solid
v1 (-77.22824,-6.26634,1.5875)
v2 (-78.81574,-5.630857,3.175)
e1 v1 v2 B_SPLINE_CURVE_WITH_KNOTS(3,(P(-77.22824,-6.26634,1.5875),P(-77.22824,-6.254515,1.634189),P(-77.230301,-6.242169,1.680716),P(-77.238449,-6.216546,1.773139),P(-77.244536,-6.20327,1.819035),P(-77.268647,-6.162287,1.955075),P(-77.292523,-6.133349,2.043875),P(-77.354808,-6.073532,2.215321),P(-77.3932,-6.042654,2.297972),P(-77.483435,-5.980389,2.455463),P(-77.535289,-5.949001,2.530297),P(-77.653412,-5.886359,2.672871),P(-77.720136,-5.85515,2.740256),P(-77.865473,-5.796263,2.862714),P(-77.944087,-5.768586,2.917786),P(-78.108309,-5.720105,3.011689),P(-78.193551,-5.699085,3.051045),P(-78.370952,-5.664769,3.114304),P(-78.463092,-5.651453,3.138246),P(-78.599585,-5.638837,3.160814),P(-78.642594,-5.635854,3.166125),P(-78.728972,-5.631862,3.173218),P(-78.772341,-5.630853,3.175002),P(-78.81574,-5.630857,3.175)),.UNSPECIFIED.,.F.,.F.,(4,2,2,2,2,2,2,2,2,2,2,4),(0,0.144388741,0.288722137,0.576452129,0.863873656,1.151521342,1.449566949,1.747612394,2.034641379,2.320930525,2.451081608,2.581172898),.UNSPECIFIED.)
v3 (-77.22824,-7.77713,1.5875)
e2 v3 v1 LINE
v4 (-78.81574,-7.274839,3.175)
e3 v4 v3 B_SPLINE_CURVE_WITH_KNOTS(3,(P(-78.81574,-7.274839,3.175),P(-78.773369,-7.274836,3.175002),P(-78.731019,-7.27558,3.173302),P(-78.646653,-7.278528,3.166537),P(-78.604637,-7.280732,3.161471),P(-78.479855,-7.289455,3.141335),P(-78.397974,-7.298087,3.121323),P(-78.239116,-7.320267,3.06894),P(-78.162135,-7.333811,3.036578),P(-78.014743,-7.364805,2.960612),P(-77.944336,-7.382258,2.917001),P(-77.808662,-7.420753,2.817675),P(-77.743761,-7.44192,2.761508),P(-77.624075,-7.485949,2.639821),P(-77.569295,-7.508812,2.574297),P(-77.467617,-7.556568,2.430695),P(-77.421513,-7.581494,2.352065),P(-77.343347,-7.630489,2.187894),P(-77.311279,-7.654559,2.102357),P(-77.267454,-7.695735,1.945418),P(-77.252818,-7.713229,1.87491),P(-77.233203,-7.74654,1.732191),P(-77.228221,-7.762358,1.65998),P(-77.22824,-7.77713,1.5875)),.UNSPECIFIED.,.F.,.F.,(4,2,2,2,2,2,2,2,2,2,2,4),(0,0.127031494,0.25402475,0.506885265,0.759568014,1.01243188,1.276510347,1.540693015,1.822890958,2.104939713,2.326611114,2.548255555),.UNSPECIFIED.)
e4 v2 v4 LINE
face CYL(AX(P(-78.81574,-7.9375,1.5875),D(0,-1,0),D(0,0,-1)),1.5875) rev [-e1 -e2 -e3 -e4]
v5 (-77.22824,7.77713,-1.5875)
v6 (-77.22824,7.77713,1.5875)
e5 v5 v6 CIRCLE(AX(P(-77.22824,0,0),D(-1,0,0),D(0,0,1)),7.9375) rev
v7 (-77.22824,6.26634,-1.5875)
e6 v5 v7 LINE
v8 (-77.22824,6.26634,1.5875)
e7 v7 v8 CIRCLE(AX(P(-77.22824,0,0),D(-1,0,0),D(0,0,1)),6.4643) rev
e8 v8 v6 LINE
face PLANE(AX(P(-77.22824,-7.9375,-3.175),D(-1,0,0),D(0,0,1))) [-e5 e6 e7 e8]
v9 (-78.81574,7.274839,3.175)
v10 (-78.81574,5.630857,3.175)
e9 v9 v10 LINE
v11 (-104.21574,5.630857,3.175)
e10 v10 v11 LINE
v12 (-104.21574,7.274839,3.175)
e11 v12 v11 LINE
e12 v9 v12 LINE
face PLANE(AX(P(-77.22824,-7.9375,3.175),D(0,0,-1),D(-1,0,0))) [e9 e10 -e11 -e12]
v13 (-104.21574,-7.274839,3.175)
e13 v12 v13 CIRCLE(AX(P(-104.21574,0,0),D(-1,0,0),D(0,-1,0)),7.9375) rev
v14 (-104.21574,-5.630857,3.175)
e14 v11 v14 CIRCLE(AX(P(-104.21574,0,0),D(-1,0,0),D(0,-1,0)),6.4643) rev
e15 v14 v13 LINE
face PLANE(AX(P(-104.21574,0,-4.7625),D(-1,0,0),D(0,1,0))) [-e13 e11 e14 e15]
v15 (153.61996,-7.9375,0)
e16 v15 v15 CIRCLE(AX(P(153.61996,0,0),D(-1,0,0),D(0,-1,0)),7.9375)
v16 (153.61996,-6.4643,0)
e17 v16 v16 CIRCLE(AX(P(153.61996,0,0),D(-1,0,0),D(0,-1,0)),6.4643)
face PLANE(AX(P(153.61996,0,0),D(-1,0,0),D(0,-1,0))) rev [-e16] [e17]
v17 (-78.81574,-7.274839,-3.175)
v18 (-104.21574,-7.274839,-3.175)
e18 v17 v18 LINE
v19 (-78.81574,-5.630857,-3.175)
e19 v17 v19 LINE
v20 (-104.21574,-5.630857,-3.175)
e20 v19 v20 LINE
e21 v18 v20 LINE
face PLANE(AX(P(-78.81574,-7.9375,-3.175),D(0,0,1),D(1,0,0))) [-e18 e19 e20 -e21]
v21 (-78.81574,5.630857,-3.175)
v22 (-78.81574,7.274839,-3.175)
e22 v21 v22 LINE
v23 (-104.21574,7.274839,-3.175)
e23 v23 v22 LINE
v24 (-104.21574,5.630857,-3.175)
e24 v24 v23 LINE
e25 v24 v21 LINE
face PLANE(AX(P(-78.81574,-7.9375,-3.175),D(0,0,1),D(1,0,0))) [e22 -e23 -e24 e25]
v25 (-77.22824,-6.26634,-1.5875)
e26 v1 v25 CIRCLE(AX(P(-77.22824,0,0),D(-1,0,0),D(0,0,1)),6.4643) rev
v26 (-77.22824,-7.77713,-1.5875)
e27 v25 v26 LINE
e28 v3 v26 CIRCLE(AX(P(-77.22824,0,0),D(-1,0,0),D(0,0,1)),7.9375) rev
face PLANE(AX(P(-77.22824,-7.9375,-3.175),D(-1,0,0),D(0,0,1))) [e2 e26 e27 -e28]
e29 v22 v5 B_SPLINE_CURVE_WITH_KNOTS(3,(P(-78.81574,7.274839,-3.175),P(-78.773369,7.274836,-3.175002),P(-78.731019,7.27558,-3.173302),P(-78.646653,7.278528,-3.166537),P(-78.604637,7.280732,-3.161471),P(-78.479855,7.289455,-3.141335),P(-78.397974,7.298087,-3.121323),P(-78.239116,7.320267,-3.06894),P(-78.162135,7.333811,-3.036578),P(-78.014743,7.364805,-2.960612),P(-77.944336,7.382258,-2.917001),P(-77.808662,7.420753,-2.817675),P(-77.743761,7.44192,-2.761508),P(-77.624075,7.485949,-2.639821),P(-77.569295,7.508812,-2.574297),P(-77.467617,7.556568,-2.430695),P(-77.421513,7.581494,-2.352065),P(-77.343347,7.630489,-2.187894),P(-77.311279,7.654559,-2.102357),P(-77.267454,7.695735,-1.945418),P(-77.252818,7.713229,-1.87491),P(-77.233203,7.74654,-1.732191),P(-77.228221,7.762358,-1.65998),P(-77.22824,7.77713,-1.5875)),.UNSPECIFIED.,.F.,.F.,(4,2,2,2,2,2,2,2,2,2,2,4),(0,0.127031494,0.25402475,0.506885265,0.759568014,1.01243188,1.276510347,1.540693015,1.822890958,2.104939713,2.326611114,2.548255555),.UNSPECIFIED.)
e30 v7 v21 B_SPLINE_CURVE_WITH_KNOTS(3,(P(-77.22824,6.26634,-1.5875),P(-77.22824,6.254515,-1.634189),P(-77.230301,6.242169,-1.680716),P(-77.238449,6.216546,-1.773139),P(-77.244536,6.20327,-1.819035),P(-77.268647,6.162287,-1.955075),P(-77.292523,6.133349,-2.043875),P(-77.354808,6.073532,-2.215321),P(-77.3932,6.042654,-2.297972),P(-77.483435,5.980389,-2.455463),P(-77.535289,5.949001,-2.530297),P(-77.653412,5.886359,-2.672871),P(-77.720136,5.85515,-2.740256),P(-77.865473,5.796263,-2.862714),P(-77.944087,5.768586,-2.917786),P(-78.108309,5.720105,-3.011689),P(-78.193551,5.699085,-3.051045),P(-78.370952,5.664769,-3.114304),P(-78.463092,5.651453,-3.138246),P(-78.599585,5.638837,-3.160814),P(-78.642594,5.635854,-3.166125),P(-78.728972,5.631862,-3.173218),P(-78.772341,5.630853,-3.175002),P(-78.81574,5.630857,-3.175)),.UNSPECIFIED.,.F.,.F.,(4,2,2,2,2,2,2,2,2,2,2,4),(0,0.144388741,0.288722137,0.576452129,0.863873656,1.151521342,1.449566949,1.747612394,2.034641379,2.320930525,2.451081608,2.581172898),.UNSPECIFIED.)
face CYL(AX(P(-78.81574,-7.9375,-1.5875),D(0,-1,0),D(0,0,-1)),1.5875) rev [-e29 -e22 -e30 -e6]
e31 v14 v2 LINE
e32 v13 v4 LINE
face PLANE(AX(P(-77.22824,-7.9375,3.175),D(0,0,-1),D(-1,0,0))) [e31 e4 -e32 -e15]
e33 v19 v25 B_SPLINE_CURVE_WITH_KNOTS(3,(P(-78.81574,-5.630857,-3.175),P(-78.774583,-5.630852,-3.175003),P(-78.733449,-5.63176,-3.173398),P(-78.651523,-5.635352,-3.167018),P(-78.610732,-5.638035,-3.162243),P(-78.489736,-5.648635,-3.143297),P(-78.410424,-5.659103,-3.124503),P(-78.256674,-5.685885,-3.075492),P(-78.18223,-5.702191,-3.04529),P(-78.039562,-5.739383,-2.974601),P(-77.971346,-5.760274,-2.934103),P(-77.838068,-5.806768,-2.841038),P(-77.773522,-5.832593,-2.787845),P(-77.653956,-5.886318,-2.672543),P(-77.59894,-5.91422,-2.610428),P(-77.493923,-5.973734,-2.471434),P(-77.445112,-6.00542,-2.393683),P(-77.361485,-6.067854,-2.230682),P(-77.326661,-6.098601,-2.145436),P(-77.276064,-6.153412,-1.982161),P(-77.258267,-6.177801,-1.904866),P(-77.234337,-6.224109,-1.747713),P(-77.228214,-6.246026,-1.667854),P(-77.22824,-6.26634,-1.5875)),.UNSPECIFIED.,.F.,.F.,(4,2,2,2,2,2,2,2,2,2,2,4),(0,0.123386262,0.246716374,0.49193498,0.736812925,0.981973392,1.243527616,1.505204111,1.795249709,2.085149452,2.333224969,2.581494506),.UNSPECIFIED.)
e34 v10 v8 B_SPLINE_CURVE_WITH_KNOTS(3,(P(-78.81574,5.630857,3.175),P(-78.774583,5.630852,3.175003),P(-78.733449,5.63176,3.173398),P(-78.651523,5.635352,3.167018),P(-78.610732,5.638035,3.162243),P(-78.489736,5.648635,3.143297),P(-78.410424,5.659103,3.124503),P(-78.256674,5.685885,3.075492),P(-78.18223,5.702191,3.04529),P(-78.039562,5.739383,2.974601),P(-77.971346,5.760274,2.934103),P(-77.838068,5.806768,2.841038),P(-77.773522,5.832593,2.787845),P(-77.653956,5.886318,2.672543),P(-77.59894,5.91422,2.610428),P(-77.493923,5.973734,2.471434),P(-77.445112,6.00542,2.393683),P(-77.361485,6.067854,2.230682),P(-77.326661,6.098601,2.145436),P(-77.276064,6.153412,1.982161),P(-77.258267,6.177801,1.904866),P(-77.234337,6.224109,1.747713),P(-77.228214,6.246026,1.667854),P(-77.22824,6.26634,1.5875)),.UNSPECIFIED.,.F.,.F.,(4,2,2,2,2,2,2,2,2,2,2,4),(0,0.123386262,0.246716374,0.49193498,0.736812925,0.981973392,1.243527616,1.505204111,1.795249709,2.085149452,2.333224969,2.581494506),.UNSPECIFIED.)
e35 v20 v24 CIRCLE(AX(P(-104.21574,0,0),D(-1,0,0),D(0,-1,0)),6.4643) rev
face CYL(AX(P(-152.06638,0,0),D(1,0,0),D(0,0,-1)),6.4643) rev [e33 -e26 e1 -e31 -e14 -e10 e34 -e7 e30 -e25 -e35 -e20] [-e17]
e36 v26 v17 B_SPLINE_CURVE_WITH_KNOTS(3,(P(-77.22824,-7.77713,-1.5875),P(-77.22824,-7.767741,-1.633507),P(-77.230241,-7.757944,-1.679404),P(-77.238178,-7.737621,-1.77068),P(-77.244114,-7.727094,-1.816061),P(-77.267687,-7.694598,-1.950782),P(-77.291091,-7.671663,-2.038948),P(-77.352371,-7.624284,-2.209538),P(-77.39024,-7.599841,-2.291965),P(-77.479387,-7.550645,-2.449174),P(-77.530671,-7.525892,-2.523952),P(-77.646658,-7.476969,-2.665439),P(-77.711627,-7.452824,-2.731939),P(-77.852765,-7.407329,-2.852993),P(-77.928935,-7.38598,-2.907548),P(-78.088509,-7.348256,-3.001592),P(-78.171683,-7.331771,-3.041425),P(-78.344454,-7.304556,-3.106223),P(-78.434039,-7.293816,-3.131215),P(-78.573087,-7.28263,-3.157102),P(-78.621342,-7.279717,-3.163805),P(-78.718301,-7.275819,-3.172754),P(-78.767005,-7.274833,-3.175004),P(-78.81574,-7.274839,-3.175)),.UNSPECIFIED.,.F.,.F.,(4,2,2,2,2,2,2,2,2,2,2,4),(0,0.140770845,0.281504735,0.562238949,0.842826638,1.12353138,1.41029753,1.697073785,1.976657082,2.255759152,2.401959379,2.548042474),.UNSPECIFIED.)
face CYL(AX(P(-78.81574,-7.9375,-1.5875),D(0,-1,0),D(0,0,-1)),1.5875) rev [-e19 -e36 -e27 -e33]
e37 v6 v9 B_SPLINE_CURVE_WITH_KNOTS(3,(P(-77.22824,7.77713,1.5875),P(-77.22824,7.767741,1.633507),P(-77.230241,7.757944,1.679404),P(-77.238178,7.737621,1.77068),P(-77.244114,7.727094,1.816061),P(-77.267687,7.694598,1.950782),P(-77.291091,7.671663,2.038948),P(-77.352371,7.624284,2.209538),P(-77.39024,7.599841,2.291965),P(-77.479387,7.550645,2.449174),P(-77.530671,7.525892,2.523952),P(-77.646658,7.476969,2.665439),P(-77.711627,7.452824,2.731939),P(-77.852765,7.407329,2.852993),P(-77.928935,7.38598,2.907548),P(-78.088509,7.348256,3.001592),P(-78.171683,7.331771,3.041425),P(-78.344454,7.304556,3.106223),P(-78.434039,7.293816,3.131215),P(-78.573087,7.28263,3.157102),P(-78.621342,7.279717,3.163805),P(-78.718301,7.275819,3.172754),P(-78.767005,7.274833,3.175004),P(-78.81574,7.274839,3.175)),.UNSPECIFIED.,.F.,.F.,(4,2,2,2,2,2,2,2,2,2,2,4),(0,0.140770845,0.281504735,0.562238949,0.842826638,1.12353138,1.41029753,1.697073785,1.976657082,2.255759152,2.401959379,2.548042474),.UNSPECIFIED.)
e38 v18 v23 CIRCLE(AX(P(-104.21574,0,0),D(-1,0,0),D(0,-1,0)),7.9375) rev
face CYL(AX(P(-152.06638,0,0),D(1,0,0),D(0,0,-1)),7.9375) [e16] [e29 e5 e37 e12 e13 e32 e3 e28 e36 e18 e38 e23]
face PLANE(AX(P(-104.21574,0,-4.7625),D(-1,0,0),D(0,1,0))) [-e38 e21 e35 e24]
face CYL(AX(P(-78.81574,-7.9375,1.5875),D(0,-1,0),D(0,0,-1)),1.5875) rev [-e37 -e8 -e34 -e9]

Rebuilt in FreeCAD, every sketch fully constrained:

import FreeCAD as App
import Part
import Sketcher
from FreeCAD import Vector
Q = App.Units.Quantity


def edges_at(feature, points):
    """Names of the edges that pass closest to the given points."""
    edges = feature.Shape.Edges
    near = lambda p: min(range(len(edges)), key=lambda i: edges[i].distToShape(Part.Vertex(*p))[0])
    return sorted({f"Edge{near(p) + 1}" for p in points})


def add_polygon(sketch, points):
    """Adds a closed chain of lines whose ends are joined by coincident constraints."""
    first, n = sketch.GeometryCount, len(points)
    for a, b in zip(points, points[1:] + points[:1]):
        sketch.addGeometry(Part.LineSegment(App.Vector(*a, 0), App.Vector(*b, 0)), False)
    for i in range(n):
        sketch.addConstraint(Sketcher.Constraint("Coincident", first + i, 2, first + (i + 1) % n, 1))

doc = App.newDocument("Part")
body = doc.addObject("PartDesign::Body", "Body")

sketch1 = body.newObject("Sketcher::SketchObject", "Sketch")
sketch1.AttachmentSupport = (doc.getObject("YZ_Plane"), [""])
sketch1.MapMode = "FlatFace"
sketch1.addGeometry([
    Part.Circle(Vector(0, 0, 0), Vector(0, 0, 1), 8),
    Part.Circle(Vector(0, 0, 0), Vector(0, 0, 1), 6),
], False)
sketch1.addConstraint([
    Sketcher.Constraint("Coincident", 0, 3, -1, 1),
    Sketcher.Constraint("Coincident", 1, 3, -1, 1),
    Sketcher.Constraint("Diameter", 0, Q("0.625 in")),
    Sketcher.Constraint("Diameter", 1, Q("0.509 in")),
])
pad1 = body.newObject("PartDesign::Pad", "Pad")
pad1.Profile = sketch1
pad1.Type = "TwoLengths"
pad1.Length = 153.61996
pad1.Length2 = 104.21574

sketch2 = body.newObject("Sketcher::SketchObject", "Sketch001")
sketch2.AttachmentSupport = (doc.getObject("XZ_Plane"), [""])
sketch2.MapMode = "FlatFace"
sketch2.AttachmentOffset = App.Placement(Vector(0, 0, -0.3125 * 25.4), App.Rotation())
add_polygon(sketch2, [(-112, -3), (-112, 3), (-77, 3), (-77, -3)])
sketch2.addConstraint([
    Sketcher.Constraint("Vertical", 0),
    Sketcher.Constraint("Horizontal", 1),
    Sketcher.Constraint("Vertical", 2),
    Sketcher.Constraint("Horizontal", 3),
    Sketcher.Constraint("DistanceY", 0, 1, 0, 2, Q("0.25 in")),
    Sketcher.Constraint("DistanceX", 1, 1, 1, 2, Q("1.3875 in")),
    Sketcher.Constraint("DistanceY", -1, 1, 0, 2, Q("0.125 in")),
    Sketcher.Constraint("DistanceX", 0, 2, -1, 1, Q("112.47074 mm")),
])
pocket1 = body.newObject("PartDesign::Pocket", "Pocket")
pocket1.Profile = sketch2
pocket1.Type = "ThroughAll"
pocket1.Reversed = True
doc.recompute()

fillet = body.newObject("PartDesign::Fillet", "Fillet")
fillet.Base = (pocket1, edges_at(pocket1, [
    (-77.228, -6.453, -3.175),
    (-77.228, 6.453, -3.175),
    (-77.228, 6.453, 3.175),
    (-77.228, -6.453, 3.175),
]))
fillet.Radius = Q("0.0625 in")

doc.recompute()
